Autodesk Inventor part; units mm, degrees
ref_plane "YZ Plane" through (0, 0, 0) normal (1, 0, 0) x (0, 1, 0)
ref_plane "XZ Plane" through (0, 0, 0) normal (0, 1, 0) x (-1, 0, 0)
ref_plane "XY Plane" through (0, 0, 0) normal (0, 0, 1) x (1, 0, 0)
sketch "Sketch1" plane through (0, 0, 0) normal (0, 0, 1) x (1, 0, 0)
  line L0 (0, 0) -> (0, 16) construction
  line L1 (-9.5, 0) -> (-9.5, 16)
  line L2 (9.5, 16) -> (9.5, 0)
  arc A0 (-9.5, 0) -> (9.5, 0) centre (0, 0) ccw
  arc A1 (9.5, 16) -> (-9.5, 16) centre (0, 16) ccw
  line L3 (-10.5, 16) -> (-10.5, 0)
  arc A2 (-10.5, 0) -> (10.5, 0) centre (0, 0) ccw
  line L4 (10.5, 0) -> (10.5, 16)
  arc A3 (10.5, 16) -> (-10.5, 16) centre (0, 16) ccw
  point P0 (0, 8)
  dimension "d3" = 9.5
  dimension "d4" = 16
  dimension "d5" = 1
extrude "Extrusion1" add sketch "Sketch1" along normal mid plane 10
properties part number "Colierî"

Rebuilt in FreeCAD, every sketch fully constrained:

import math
import FreeCAD as App
import Part
import Sketcher
Q = App.Units.Quantity

doc = App.newDocument("Part")
params = doc.addObject("Spreadsheet::Sheet", "Params")
for row, (alias, value) in enumerate([
    ("sketch1_radius", "9.5 mm"),
    ("sketch1_height", "16 mm"),
    ("pad1_length", "10 mm"),
], start=1):
    params.set(f"A{row}", alias)
    params.set(f"B{row}", "=" + value)
    params.setAlias(f"B{row}", alias)

body = doc.addObject("PartDesign::Body", "Body")

sketch1 = body.newObject("Sketcher::SketchObject", "Sketch")
sketch1.AttachmentSupport = (doc.getObject("XY_Plane"), [""])
sketch1.MapMode = "FlatFace"
sketch1.addGeometry([
    Part.ArcOfCircle(Part.Circle(App.Vector(0, 16, 0), App.Vector(0, 0, 1), 10), math.radians(0), math.radians(180)),
    Part.LineSegment(App.Vector(-10, 16, 0), App.Vector(-10, 0, 0)),
    Part.ArcOfCircle(Part.Circle(App.Vector(0, 0, 0), App.Vector(0, 0, 1), 10), math.radians(180), math.radians(360)),
    Part.LineSegment(App.Vector(10, 0, 0), App.Vector(10, 16, 0)),
    Part.ArcOfCircle(Part.Circle(App.Vector(0, 0, 0), App.Vector(0, 0, 1), 10), math.radians(180), math.radians(360)),
    Part.LineSegment(App.Vector(-10, 0, 0), App.Vector(-10, 16, 0)),
    Part.ArcOfCircle(Part.Circle(App.Vector(0, 16, 0), App.Vector(0, 0, 1), 10), math.radians(0), math.radians(180)),
    Part.LineSegment(App.Vector(10, 16, 0), App.Vector(10, 0, 0)),
], False)
sketch1.addConstraint([
    Sketcher.Constraint("Tangent", 0, 2, 1, 1),
    Sketcher.Constraint("Tangent", 1, 2, 2, 1),
    Sketcher.Constraint("Tangent", 2, 2, 3, 1),
    Sketcher.Constraint("Tangent", 3, 2, 0, 1),
    Sketcher.Constraint("Tangent", 4, 1, 5, 1),
    Sketcher.Constraint("Tangent", 5, 2, 6, 2),
    Sketcher.Constraint("Tangent", 6, 1, 7, 1),
    Sketcher.Constraint("Tangent", 7, 2, 4, 2),
    Sketcher.Constraint("Vertical", 1),
    Sketcher.Constraint("Vertical", 3),
    Sketcher.Constraint("Vertical", 5),
    Sketcher.Constraint("Vertical", 7),
    Sketcher.Constraint("Coincident", 2, 3, -1, 1),
    Sketcher.Constraint("Coincident", 4, 3, -1, 1),
    Sketcher.Constraint("Horizontal", 6, 3, 0, 2),
    Sketcher.Constraint("Radius", 4, Q("9.5 mm")),
    Sketcher.Constraint("DistanceY", 1, 2, 1, 1, Q("16 mm")),
    Sketcher.Constraint("DistanceX", 1, 2, 4, 1, Q("1 mm")),
])
sketch1.setExpression("Constraints[15]", "Params.sketch1_radius")
sketch1.setExpression("Constraints[16]", "Params.sketch1_height")
pad1 = body.newObject("PartDesign::Pad", "Pad")
pad1.Profile = sketch1
pad1.setExpression("Length", "Params.pad1_length")
pad1.Midplane = True

doc.recompute()
